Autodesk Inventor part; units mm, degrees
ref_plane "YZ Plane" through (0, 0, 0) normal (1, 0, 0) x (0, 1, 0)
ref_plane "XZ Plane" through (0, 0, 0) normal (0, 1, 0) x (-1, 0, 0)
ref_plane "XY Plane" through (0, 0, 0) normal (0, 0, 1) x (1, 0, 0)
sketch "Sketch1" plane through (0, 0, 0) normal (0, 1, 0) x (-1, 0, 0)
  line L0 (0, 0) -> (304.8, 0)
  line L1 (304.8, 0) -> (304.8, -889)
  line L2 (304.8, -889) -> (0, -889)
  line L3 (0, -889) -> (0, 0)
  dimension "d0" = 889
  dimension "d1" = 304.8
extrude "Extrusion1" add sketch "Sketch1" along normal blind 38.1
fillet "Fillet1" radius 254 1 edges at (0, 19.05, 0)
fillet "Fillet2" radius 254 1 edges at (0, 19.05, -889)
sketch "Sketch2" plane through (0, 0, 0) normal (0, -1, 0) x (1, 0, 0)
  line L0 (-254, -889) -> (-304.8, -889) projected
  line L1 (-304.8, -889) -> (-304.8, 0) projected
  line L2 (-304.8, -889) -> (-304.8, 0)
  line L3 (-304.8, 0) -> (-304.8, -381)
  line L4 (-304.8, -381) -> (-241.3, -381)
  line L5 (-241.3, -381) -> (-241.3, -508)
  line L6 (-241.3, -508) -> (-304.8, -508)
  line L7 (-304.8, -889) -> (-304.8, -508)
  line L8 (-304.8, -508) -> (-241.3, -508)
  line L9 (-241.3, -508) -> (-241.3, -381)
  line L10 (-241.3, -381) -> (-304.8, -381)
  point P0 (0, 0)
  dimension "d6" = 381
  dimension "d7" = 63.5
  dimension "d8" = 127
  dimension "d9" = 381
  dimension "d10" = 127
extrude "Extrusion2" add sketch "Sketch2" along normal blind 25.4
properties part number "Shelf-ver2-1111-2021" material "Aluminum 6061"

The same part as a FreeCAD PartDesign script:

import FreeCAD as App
import Part
import Sketcher
from FreeCAD import Vector
Q = App.Units.Quantity


def edges_at(feature, points):
    """Names of the edges that pass closest to the given points."""
    edges = feature.Shape.Edges
    near = lambda p: min(range(len(edges)), key=lambda i: edges[i].distToShape(Part.Vertex(*p))[0])
    return sorted({f"Edge{near(p) + 1}" for p in points})


def add_polygon(sketch, points):
    """Adds a closed chain of lines whose ends are joined by coincident constraints."""
    first, n = sketch.GeometryCount, len(points)
    for a, b in zip(points, points[1:] + points[:1]):
        sketch.addGeometry(Part.LineSegment(App.Vector(*a, 0), App.Vector(*b, 0)), False)
    for i in range(n):
        sketch.addConstraint(Sketcher.Constraint("Coincident", first + i, 2, first + (i + 1) % n, 1))

doc = App.newDocument("Part")
params = doc.addObject("Spreadsheet::Sheet", "Params")
for row, (alias, value) in enumerate([
    ("sketch1_width", "12 in"),
    ("sketch1_height", "35 in"),
    ("pad1_length", "1.5 in"),
    ("fillet_radius", "10 in"),
    ("fillet2_radius", "10 in"),
    ("sketch2_height", "5 in"),
    ("sketch2_width", "2.5 in"),
    ("pad2_length", "1 in"),
], start=1):
    params.set(f"A{row}", alias)
    params.set(f"B{row}", "=" + value)
    params.setAlias(f"B{row}", alias)

body = doc.addObject("PartDesign::Body", "Body")

# Sketch on XZ plane
sketch1 = body.newObject("Sketcher::SketchObject", "Sketch")
sketch1.AttachmentSupport = (doc.getObject("XZ_Plane"), [""])
sketch1.MapMode = "FlatFace"
add_polygon(sketch1, [(-305, 0), (0, 0), (0, -889), (-305, -889)])  # lines 0-3
sketch1.addConstraint([
    Sketcher.Constraint("Horizontal", 0),
    Sketcher.Constraint("Vertical", 1),
    Sketcher.Constraint("Horizontal", 2),
    Sketcher.Constraint("Vertical", 3),
    Sketcher.Constraint("Coincident", 0, 2, -1, 1),
    Sketcher.Constraint("DistanceX", 0, 1, 0, 2, Q("12 in")),
    Sketcher.Constraint("DistanceY", 1, 2, 1, 1, Q("35 in")),
])
sketch1.setExpression("Constraints[9]", "Params.sketch1_width")
sketch1.setExpression("Constraints[10]", "Params.sketch1_height")
pad1 = body.newObject("PartDesign::Pad", "Pad")
pad1.Profile = sketch1
pad1.setExpression("Length", "Params.pad1_length")
pad1.Reversed = True
doc.recompute()

fillet = body.newObject("PartDesign::Fillet", "Fillet")
fillet.Base = (pad1, edges_at(pad1, [(0, 19.05, 0)]))
fillet.setExpression("Radius", "Params.fillet_radius")
doc.recompute()

fillet2 = body.newObject("PartDesign::Fillet", "Fillet001")
fillet2.Base = (fillet, edges_at(fillet, [(0, 19.05, -889)]))
fillet2.setExpression("Radius", "Params.fillet2_radius")

# Sketch on XZ plane
sketch2 = body.newObject("Sketcher::SketchObject", "Sketch001")
sketch2.AttachmentSupport = (doc.getObject("XZ_Plane"), [""])
sketch2.MapMode = "FlatFace"
add_polygon(sketch2, [(-305, -381), (-305, -508), (-241, -508), (-241, -381)])  # lines 0-3
sketch2.addConstraint([
    Sketcher.Constraint("Vertical", 0),
    Sketcher.Constraint("Horizontal", 1),
    Sketcher.Constraint("Vertical", 2),
    Sketcher.Constraint("Horizontal", 3),
    Sketcher.Constraint("DistanceY", 0, 2, 0, 1, Q("5 in")),
    Sketcher.Constraint("DistanceX", 1, 1, 1, 2, Q("2.5 in")),
    Sketcher.Constraint("DistanceY", 2, 2, -1, 1, Q("15 in")),
    Sketcher.Constraint("DistanceX", 0, 2, -1, 1, Q("12 in")),
])
sketch2.setExpression("Constraints[8]", "Params.sketch2_height")
sketch2.setExpression("Constraints[9]", "Params.sketch2_width")
pad2 = body.newObject("PartDesign::Pad", "Pad001")
pad2.Profile = sketch2
pad2.setExpression("Length", "Params.pad2_length")

doc.recompute()
